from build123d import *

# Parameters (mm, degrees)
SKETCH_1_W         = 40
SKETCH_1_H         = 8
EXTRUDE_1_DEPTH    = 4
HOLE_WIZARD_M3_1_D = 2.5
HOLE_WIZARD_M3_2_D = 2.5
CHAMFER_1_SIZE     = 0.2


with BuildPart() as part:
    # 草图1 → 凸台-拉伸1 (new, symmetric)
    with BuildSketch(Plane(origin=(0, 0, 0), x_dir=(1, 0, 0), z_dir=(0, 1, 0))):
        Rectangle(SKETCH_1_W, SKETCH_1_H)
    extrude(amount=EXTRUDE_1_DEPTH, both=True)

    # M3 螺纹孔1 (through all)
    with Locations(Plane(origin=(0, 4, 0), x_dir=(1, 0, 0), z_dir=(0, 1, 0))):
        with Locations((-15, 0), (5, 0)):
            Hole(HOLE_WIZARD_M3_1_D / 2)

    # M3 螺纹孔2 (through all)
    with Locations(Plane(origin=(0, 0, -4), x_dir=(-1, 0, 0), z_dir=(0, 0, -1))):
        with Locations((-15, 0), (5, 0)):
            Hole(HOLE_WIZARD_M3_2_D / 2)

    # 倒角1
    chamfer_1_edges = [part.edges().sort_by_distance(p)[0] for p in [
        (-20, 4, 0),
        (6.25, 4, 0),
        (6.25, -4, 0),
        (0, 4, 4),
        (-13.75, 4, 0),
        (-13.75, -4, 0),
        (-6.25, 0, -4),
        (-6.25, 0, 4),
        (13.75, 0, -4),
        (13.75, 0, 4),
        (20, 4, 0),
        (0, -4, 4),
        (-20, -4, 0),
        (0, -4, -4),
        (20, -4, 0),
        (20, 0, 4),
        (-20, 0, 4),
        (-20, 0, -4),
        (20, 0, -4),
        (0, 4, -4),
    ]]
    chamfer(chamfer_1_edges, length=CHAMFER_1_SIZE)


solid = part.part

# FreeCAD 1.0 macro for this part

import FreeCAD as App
import Part
import Sketcher
Q = App.Units.Quantity

doc = App.newDocument("Part")
body = doc.addObject("PartDesign::Body", "Body")

# Sketch on XZ plane
sketch1 = body.newObject("Sketcher::SketchObject", "Sketch")
sketch1.AttachmentSupport = (doc.getObject("XZ_Plane"), [""])
sketch1.MapMode = "FlatFace"
sketch1.addGeometry([
    Part.LineSegment(App.Vector(-20, -4, 0), App.Vector(-20, 4, 0)),
    Part.LineSegment(App.Vector(-20, 4, 0), App.Vector(20, 4, 0)),
    Part.LineSegment(App.Vector(20, 4, 0), App.Vector(20, -4, 0)),
    Part.LineSegment(App.Vector(20, -4, 0), App.Vector(-20, -4, 0)),
], False)
sketch1.addConstraint([
    Sketcher.Constraint("Coincident", 0, 2, 1, 1),
    Sketcher.Constraint("Coincident", 1, 2, 2, 1),
    Sketcher.Constraint("Coincident", 2, 2, 3, 1),
    Sketcher.Constraint("Coincident", 3, 2, 0, 1),
    Sketcher.Constraint("Vertical", 0),
    Sketcher.Constraint("Horizontal", 1),
    Sketcher.Constraint("Vertical", 2),
    Sketcher.Constraint("Horizontal", 3),
    Sketcher.Constraint("Symmetric", 0, 2, 2, 2, -1, 1),
    Sketcher.Constraint("DistanceX", 1, 1, 1, 2, Q("40 mm")),
    Sketcher.Constraint("DistanceY", 0, 1, 0, 2, Q("8 mm")),
])
pad1 = body.newObject("PartDesign::Pad", "Pad")
pad1.Profile = sketch1
pad1.Length = 8
pad1.Midplane = True

# Sketch on XZ plane
sketch2 = body.newObject("Sketcher::SketchObject", "Sketch001")
sketch2.AttachmentSupport = (doc.getObject("XZ_Plane"), [""])
sketch2.MapMode = "FlatFace"
sketch2.AttachmentOffset = App.Placement(App.Vector(0, 0, -4), App.Rotation())
sketch2.addGeometry([
    Part.Circle(App.Vector(-15, 0, 0), App.Vector(0, 0, 1), 1.25),
    Part.Circle(App.Vector(5, 0, 0), App.Vector(0, 0, 1), 1.25),
], False)
sketch2.addConstraint([
    Sketcher.Constraint("Equal", 0, 1),
    Sketcher.Constraint("PointOnObject", 0, 3, -1),
    Sketcher.Constraint("PointOnObject", 1, 3, -1),
    Sketcher.Constraint("Diameter", 0, Q("2.5 mm")),
    Sketcher.Constraint("DistanceX", 0, 3, -1, 1, Q("15 mm")),
    Sketcher.Constraint("DistanceX", -1, 1, 1, 3, Q("5 mm")),
])
doc.recompute()
hole = body.newObject("PartDesign::Hole", "Hole")
hole.Profile = sketch2
hole.ThreadType = "None"
hole.Diameter = 2.5
hole.DepthType = "ThroughAll"
hole.Reversed = True

# Sketch on XY plane
sketch3 = body.newObject("Sketcher::SketchObject", "Sketch002")
sketch3.AttachmentSupport = (doc.getObject("XY_Plane"), [""])
sketch3.MapMode = "FlatFace"
sketch3.AttachmentOffset = App.Placement(App.Vector(0, 0, -4), App.Rotation())
sketch3.addGeometry([
    Part.Circle(App.Vector(15, 0, 0), App.Vector(0, 0, 1), 1.25),
    Part.Circle(App.Vector(-5, 0, 0), App.Vector(0, 0, 1), 1.25),
], False)
sketch3.addConstraint([
    Sketcher.Constraint("Equal", 0, 1),
    Sketcher.Constraint("PointOnObject", 0, 3, -1),
    Sketcher.Constraint("PointOnObject", 1, 3, -1),
    Sketcher.Constraint("Diameter", 0, Q("2.5 mm")),
    Sketcher.Constraint("DistanceX", -1, 1, 0, 3, Q("15 mm")),
    Sketcher.Constraint("DistanceX", 1, 3, -1, 1, Q("5 mm")),
])
doc.recompute()
hole2 = body.newObject("PartDesign::Hole", "Hole001")
hole2.Profile = sketch3
hole2.ThreadType = "None"
hole2.Diameter = 2.5
hole2.DepthType = "ThroughAll"
hole2.Reversed = True
doc.recompute()

chamfer = body.newObject("PartDesign::Chamfer", "Chamfer")
chamfer.Base = (hole2, ["Edge1"])
chamfer.UseAllEdges = True
chamfer.Size = 0.2

doc.recompute()
